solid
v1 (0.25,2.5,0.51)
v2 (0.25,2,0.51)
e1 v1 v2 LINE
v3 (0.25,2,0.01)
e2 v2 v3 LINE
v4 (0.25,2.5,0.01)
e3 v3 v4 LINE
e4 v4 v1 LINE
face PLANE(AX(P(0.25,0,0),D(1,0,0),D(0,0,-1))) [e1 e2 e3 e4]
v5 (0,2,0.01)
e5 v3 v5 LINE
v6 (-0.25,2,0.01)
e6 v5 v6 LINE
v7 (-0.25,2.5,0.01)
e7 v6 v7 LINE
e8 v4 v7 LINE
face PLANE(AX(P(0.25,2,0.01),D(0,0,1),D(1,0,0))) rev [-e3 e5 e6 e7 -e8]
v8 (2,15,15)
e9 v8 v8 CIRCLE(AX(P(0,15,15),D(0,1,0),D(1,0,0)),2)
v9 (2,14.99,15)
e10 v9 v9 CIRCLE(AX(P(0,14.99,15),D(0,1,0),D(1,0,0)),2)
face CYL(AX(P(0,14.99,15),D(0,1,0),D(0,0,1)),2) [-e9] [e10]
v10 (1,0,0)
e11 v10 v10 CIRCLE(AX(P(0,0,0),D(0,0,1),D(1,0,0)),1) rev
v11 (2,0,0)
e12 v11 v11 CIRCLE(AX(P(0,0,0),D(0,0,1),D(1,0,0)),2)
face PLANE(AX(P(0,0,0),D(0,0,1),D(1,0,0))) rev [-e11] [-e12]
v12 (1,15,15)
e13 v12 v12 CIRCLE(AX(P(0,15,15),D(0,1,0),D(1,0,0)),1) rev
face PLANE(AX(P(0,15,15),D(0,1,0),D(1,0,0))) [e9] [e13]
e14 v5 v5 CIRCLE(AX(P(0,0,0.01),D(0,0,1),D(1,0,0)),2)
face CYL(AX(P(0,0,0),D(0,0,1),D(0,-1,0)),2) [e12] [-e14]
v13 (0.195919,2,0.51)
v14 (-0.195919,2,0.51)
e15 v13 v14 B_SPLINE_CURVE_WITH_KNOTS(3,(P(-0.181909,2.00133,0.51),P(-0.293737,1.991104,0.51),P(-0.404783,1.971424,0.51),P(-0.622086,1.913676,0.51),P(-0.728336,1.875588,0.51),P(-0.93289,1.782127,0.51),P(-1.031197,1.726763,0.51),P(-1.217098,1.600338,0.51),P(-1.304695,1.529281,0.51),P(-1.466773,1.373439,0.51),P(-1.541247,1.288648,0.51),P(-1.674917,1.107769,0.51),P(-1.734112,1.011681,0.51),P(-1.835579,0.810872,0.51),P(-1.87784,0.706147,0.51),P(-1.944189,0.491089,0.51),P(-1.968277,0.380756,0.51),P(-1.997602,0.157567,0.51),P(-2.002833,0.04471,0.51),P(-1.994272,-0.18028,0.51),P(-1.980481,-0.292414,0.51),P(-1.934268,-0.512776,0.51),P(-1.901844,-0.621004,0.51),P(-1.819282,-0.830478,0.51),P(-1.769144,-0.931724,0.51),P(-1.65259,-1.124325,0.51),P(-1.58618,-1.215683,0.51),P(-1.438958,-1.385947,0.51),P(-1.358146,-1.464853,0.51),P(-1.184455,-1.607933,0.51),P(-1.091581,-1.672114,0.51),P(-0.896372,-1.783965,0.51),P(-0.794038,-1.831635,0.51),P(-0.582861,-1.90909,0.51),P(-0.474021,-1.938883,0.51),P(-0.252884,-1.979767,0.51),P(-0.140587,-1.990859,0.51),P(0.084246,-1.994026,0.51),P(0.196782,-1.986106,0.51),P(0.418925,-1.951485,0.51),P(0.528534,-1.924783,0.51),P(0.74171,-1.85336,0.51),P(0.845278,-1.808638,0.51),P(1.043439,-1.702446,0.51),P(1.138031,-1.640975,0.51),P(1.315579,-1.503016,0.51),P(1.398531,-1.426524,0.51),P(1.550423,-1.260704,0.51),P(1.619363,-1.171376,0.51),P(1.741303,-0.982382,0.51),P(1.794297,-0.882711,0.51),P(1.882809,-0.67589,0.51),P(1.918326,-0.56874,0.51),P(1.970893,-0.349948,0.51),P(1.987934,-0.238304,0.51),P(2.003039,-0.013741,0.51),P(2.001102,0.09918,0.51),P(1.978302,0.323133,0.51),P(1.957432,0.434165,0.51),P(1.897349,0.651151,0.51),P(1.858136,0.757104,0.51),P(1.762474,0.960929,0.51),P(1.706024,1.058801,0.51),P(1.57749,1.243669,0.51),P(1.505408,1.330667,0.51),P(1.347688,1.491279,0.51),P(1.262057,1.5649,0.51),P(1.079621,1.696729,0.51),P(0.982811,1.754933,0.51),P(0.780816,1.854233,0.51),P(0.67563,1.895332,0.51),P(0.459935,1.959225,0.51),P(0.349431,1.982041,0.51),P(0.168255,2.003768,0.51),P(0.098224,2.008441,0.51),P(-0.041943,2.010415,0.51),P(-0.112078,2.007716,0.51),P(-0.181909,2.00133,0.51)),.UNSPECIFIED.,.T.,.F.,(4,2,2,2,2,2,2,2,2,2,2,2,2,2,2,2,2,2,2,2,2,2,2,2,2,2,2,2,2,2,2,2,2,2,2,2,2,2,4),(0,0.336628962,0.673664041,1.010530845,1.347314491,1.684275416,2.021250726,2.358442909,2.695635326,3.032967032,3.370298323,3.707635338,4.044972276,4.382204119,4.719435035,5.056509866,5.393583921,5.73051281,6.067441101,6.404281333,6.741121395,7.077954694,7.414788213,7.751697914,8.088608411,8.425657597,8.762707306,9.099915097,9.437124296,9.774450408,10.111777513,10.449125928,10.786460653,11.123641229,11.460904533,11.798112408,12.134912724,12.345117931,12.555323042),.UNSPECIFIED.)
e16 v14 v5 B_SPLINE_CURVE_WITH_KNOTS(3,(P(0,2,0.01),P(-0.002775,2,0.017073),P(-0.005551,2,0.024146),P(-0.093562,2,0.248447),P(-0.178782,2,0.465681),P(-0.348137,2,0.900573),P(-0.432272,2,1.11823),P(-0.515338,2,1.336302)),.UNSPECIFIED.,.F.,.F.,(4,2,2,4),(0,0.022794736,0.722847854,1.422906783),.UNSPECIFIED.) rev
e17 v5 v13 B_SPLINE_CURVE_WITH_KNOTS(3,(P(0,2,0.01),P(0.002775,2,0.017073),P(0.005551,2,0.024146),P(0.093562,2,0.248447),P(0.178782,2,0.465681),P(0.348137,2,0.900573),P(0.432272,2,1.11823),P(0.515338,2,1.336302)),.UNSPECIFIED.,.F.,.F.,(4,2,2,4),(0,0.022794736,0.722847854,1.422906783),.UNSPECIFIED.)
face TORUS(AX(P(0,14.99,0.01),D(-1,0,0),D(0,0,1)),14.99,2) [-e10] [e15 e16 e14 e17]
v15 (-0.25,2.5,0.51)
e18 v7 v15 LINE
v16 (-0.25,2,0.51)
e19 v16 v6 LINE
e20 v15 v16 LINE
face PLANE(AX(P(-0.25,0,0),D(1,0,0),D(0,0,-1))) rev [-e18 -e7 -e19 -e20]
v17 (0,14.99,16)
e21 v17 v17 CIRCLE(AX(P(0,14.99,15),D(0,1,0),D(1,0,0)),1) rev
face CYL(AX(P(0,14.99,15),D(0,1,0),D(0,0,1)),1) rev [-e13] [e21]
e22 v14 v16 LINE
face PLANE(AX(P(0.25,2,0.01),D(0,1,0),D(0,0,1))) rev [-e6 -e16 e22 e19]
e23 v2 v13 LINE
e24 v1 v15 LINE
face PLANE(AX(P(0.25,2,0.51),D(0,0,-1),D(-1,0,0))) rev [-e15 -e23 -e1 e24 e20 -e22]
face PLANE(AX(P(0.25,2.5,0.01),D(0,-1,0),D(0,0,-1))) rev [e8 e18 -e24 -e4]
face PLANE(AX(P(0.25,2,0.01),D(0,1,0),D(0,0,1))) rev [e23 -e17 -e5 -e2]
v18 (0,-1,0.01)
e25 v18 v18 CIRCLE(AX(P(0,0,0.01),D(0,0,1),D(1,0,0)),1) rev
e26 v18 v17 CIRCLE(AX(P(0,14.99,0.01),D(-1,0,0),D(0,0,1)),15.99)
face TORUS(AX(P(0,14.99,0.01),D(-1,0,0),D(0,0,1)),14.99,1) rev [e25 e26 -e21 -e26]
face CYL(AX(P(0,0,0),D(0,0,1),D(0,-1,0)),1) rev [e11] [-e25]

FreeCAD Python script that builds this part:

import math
import FreeCAD as App
import Part
import Sketcher

V = App.Vector
Q = App.Units.Quantity

doc = App.newDocument("Part")
body = doc.addObject("PartDesign::Body", "Body")

# Sketch on XY plane
sketch1 = doc.addObject("Sketcher::SketchObject", "Sketch")
body.addObject(sketch1)
sketch1.AttachmentSupport = (doc.XY_Plane, [""])
sketch1.MapMode = "FlatFace"
sketch1.addGeometry([
    Part.Circle(V(0, 0, 0), V(0, 0, 1), 2),
    Part.Circle(V(0, 0, 0), V(0, 0, 1), 1),
], False)
sketch1.addConstraint([
    Sketcher.Constraint("Coincident", 0, 3, -1, 1),
    Sketcher.Constraint("Coincident", 1, 3, -1, 1),
    Sketcher.Constraint("Diameter", 0, Q("4 mm")),
    Sketcher.Constraint("Diameter", 1, Q("2 mm")),
])

# Sketch on YZ plane
sketch2 = doc.addObject("Sketcher::SketchObject", "Sketch001")
body.addObject(sketch2)
sketch2.AttachmentSupport = (doc.YZ_Plane, [""])
sketch2.MapMode = "FlatFace"
sketch2.addGeometry([
    Part.LineSegment(V(0, 0, 0), V(0, 0.01, 0)),
    Part.ArcOfCircle(Part.Circle(V(14.99, 0.01, 0), V(0, 0, 1), 14.99), math.radians(90), math.radians(180)),
    Part.LineSegment(V(14.99, 15, 0), V(15, 15, 0)),
], False)
sketch2.addConstraint([
    Sketcher.Constraint("Tangent", 0, 2, 1, 2),
    Sketcher.Constraint("Tangent", 1, 1, 2, 1),
    Sketcher.Constraint("Coincident", 0, 1, -1, 1),
    Sketcher.Constraint("Horizontal", 1, 3, 0, 2),
    Sketcher.Constraint("Equal", 2, 0),
    Sketcher.Constraint("Radius", 1, Q("14.99 mm")),
    Sketcher.Constraint("DistanceY", -1, 1, 1, 1, Q("15 mm")),
    Sketcher.Constraint("DistanceX", -1, 1, 2, 2, Q("15 mm")),
])
doc.recompute()

additivepipe = doc.addObject("PartDesign::AdditivePipe", "AdditivePipe")
body.addObject(additivepipe)
additivepipe.Profile = sketch1
additivepipe.Spine = (sketch2, ["Edge1", "Edge2", "Edge3"])

# Sketch on YZ plane
sketch3 = doc.addObject("Sketcher::SketchObject", "Sketch002")
body.addObject(sketch3)
sketch3.AttachmentSupport = (doc.YZ_Plane, [""])
sketch3.MapMode = "FlatFace"
sketch3.addGeometry([
    Part.LineSegment(V(2.5, 0.51, 0), V(2, 0.51, 0)),
    Part.LineSegment(V(2, 0.51, 0), V(2, 0.01, 0)),
    Part.LineSegment(V(2, 0.01, 0), V(2.5, 0.01, 0)),
    Part.LineSegment(V(2.5, 0.01, 0), V(2.5, 0.51, 0)),
], False)
sketch3.addConstraint([
    Sketcher.Constraint("Coincident", 0, 2, 1, 1),
    Sketcher.Constraint("Coincident", 1, 2, 2, 1),
    Sketcher.Constraint("Coincident", 2, 2, 3, 1),
    Sketcher.Constraint("Coincident", 3, 2, 0, 1),
    Sketcher.Constraint("Horizontal", 0),
    Sketcher.Constraint("Vertical", 1),
    Sketcher.Constraint("Horizontal", 2),
    Sketcher.Constraint("Vertical", 3),
    Sketcher.Constraint("Equal", 2, 1),
    Sketcher.Constraint("DistanceX", 0, 2, 0, 1, Q("0.5 mm")),
    Sketcher.Constraint("DistanceX", -1, 1, 0, 2, Q("2 mm")),
    Sketcher.Constraint("DistanceY", -1, 1, 0, 2, Q("0.51 mm")),
])
pad1 = doc.addObject("PartDesign::Pad", "Pad")
body.addObject(pad1)
pad1.Profile = sketch3
pad1.Length = 0.5
pad1.Midplane = True

doc.recompute()
